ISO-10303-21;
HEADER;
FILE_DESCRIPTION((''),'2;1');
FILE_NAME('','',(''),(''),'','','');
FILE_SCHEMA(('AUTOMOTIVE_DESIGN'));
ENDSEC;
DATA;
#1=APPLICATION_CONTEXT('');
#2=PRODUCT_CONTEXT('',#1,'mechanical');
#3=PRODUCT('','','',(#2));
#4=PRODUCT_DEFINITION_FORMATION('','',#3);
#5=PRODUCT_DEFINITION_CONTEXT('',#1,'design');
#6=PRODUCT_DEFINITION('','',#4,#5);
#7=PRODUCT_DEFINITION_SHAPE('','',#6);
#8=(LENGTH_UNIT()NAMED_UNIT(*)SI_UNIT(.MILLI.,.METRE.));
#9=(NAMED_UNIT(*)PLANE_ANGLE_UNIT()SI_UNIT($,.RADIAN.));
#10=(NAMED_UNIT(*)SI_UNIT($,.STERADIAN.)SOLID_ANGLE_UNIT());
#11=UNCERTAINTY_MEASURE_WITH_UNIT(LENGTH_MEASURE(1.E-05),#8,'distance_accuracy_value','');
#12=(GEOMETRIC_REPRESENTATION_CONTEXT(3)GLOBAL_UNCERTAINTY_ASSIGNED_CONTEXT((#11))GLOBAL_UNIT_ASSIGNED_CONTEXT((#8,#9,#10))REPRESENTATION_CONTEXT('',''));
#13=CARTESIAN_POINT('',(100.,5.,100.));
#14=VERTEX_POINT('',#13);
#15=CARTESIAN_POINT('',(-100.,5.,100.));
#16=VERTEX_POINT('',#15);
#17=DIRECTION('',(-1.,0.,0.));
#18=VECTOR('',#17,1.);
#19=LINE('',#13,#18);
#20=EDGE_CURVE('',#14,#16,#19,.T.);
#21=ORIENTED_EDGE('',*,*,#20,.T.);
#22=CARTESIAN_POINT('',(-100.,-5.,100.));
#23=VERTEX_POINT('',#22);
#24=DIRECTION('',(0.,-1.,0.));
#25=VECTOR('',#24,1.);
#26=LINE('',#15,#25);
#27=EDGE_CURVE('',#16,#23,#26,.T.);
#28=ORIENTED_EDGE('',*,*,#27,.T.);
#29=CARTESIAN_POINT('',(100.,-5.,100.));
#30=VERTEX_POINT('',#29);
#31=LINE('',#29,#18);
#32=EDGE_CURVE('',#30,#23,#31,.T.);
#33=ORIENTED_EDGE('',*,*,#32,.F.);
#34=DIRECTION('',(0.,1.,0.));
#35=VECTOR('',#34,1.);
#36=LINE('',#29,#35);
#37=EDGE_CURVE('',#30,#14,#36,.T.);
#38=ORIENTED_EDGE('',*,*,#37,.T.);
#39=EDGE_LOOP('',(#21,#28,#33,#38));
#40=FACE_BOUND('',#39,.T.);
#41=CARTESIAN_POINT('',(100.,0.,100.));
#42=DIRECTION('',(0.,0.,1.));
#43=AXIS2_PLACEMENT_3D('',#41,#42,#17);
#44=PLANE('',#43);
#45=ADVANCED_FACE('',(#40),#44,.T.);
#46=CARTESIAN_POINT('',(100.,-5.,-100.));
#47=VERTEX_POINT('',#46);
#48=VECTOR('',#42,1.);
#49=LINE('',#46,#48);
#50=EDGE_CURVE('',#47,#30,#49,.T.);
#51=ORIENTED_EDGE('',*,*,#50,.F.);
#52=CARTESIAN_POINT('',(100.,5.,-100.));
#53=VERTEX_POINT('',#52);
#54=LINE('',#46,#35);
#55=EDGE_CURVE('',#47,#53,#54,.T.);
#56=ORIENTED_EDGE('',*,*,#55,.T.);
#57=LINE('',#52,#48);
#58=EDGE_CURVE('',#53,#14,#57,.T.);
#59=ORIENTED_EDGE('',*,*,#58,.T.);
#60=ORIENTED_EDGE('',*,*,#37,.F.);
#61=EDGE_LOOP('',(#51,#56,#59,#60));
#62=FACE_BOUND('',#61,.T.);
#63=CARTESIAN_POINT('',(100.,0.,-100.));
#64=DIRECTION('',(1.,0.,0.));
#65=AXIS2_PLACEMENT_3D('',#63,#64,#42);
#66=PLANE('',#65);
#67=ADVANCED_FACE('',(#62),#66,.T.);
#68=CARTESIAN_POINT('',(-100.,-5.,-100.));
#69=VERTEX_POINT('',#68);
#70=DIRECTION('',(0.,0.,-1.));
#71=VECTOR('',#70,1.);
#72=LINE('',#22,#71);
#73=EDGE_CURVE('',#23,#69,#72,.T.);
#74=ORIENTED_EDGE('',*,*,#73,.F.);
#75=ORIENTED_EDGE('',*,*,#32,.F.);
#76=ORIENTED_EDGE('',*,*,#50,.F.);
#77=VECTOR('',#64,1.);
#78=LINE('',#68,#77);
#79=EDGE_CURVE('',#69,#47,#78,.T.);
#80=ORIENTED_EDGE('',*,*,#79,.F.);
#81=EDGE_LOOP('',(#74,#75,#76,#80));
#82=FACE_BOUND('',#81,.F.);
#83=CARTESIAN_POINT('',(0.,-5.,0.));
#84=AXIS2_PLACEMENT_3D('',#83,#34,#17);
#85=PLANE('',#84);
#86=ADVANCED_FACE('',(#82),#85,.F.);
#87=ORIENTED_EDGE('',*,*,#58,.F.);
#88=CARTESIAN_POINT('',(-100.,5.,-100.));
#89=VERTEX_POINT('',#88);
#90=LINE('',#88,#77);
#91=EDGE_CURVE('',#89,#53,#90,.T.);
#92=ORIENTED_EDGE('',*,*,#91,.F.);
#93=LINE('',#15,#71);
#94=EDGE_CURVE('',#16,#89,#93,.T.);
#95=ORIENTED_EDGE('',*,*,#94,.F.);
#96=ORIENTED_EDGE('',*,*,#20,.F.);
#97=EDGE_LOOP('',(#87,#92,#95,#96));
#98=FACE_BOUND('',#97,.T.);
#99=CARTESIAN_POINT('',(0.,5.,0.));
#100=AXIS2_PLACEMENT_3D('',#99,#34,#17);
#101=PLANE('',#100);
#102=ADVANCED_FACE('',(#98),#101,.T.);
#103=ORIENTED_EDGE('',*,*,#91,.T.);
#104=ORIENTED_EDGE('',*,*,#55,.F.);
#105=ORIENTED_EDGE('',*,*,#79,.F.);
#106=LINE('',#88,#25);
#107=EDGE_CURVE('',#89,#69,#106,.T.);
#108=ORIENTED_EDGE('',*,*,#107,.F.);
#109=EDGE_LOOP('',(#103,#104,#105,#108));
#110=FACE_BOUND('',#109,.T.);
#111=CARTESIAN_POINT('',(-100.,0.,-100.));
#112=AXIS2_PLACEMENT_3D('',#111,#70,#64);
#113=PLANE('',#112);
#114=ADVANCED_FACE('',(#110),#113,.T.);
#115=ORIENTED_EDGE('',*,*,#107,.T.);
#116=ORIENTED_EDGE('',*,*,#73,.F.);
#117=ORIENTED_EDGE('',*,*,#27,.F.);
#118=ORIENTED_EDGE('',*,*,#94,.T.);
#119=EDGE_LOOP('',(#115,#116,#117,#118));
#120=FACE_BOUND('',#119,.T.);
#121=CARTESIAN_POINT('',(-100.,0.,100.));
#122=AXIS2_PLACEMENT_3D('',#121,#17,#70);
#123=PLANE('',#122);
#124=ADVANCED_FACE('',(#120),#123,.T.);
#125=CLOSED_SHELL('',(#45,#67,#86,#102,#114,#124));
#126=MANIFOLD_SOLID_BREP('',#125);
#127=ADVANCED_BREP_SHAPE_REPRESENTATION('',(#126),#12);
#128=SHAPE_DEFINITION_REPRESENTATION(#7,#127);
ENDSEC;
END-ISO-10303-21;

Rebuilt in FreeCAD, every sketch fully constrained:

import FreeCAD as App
import Part
import Sketcher
Q = App.Units.Quantity

doc = App.newDocument("Part")
body = doc.addObject("PartDesign::Body", "Body")

# Sketch on XZ plane
sketch1 = body.newObject("Sketcher::SketchObject", "Sketch")
sketch1.AttachmentSupport = (doc.getObject("XZ_Plane"), [""])
sketch1.MapMode = "FlatFace"
sketch1.addGeometry(Part.LineSegment(App.Vector(-100, 100, 0), App.Vector(100, 100, 0)), False)
sketch1.addGeometry(Part.LineSegment(App.Vector(100, 100, 0), App.Vector(100, -100, 0)), False)
sketch1.addGeometry(Part.LineSegment(App.Vector(100, -100, 0), App.Vector(-100, -100, 0)), False)
sketch1.addGeometry(Part.LineSegment(App.Vector(-100, -100, 0), App.Vector(-100, 100, 0)), False)
sketch1.addConstraint(Sketcher.Constraint("Coincident", 0, 2, 1, 1))
sketch1.addConstraint(Sketcher.Constraint("Coincident", 1, 2, 2, 1))
sketch1.addConstraint(Sketcher.Constraint("Coincident", 2, 2, 3, 1))
sketch1.addConstraint(Sketcher.Constraint("Coincident", 3, 2, 0, 1))
sketch1.addConstraint(Sketcher.Constraint("Horizontal", 0))
sketch1.addConstraint(Sketcher.Constraint("Vertical", 1))
sketch1.addConstraint(Sketcher.Constraint("Horizontal", 2))
sketch1.addConstraint(Sketcher.Constraint("Vertical", 3))
sketch1.addConstraint(Sketcher.Constraint("Symmetric", 0, 2, 2, 2, -1, 1))
sketch1.addConstraint(Sketcher.Constraint("Equal", 2, 1))
sketch1.addConstraint(Sketcher.Constraint("DistanceX", 0, 1, 0, 2, Q("200 mm")))
pad1 = body.newObject("PartDesign::Pad", "Pad")
pad1.Profile = sketch1
pad1.Length = 10
pad1.Midplane = True

doc.recompute()
